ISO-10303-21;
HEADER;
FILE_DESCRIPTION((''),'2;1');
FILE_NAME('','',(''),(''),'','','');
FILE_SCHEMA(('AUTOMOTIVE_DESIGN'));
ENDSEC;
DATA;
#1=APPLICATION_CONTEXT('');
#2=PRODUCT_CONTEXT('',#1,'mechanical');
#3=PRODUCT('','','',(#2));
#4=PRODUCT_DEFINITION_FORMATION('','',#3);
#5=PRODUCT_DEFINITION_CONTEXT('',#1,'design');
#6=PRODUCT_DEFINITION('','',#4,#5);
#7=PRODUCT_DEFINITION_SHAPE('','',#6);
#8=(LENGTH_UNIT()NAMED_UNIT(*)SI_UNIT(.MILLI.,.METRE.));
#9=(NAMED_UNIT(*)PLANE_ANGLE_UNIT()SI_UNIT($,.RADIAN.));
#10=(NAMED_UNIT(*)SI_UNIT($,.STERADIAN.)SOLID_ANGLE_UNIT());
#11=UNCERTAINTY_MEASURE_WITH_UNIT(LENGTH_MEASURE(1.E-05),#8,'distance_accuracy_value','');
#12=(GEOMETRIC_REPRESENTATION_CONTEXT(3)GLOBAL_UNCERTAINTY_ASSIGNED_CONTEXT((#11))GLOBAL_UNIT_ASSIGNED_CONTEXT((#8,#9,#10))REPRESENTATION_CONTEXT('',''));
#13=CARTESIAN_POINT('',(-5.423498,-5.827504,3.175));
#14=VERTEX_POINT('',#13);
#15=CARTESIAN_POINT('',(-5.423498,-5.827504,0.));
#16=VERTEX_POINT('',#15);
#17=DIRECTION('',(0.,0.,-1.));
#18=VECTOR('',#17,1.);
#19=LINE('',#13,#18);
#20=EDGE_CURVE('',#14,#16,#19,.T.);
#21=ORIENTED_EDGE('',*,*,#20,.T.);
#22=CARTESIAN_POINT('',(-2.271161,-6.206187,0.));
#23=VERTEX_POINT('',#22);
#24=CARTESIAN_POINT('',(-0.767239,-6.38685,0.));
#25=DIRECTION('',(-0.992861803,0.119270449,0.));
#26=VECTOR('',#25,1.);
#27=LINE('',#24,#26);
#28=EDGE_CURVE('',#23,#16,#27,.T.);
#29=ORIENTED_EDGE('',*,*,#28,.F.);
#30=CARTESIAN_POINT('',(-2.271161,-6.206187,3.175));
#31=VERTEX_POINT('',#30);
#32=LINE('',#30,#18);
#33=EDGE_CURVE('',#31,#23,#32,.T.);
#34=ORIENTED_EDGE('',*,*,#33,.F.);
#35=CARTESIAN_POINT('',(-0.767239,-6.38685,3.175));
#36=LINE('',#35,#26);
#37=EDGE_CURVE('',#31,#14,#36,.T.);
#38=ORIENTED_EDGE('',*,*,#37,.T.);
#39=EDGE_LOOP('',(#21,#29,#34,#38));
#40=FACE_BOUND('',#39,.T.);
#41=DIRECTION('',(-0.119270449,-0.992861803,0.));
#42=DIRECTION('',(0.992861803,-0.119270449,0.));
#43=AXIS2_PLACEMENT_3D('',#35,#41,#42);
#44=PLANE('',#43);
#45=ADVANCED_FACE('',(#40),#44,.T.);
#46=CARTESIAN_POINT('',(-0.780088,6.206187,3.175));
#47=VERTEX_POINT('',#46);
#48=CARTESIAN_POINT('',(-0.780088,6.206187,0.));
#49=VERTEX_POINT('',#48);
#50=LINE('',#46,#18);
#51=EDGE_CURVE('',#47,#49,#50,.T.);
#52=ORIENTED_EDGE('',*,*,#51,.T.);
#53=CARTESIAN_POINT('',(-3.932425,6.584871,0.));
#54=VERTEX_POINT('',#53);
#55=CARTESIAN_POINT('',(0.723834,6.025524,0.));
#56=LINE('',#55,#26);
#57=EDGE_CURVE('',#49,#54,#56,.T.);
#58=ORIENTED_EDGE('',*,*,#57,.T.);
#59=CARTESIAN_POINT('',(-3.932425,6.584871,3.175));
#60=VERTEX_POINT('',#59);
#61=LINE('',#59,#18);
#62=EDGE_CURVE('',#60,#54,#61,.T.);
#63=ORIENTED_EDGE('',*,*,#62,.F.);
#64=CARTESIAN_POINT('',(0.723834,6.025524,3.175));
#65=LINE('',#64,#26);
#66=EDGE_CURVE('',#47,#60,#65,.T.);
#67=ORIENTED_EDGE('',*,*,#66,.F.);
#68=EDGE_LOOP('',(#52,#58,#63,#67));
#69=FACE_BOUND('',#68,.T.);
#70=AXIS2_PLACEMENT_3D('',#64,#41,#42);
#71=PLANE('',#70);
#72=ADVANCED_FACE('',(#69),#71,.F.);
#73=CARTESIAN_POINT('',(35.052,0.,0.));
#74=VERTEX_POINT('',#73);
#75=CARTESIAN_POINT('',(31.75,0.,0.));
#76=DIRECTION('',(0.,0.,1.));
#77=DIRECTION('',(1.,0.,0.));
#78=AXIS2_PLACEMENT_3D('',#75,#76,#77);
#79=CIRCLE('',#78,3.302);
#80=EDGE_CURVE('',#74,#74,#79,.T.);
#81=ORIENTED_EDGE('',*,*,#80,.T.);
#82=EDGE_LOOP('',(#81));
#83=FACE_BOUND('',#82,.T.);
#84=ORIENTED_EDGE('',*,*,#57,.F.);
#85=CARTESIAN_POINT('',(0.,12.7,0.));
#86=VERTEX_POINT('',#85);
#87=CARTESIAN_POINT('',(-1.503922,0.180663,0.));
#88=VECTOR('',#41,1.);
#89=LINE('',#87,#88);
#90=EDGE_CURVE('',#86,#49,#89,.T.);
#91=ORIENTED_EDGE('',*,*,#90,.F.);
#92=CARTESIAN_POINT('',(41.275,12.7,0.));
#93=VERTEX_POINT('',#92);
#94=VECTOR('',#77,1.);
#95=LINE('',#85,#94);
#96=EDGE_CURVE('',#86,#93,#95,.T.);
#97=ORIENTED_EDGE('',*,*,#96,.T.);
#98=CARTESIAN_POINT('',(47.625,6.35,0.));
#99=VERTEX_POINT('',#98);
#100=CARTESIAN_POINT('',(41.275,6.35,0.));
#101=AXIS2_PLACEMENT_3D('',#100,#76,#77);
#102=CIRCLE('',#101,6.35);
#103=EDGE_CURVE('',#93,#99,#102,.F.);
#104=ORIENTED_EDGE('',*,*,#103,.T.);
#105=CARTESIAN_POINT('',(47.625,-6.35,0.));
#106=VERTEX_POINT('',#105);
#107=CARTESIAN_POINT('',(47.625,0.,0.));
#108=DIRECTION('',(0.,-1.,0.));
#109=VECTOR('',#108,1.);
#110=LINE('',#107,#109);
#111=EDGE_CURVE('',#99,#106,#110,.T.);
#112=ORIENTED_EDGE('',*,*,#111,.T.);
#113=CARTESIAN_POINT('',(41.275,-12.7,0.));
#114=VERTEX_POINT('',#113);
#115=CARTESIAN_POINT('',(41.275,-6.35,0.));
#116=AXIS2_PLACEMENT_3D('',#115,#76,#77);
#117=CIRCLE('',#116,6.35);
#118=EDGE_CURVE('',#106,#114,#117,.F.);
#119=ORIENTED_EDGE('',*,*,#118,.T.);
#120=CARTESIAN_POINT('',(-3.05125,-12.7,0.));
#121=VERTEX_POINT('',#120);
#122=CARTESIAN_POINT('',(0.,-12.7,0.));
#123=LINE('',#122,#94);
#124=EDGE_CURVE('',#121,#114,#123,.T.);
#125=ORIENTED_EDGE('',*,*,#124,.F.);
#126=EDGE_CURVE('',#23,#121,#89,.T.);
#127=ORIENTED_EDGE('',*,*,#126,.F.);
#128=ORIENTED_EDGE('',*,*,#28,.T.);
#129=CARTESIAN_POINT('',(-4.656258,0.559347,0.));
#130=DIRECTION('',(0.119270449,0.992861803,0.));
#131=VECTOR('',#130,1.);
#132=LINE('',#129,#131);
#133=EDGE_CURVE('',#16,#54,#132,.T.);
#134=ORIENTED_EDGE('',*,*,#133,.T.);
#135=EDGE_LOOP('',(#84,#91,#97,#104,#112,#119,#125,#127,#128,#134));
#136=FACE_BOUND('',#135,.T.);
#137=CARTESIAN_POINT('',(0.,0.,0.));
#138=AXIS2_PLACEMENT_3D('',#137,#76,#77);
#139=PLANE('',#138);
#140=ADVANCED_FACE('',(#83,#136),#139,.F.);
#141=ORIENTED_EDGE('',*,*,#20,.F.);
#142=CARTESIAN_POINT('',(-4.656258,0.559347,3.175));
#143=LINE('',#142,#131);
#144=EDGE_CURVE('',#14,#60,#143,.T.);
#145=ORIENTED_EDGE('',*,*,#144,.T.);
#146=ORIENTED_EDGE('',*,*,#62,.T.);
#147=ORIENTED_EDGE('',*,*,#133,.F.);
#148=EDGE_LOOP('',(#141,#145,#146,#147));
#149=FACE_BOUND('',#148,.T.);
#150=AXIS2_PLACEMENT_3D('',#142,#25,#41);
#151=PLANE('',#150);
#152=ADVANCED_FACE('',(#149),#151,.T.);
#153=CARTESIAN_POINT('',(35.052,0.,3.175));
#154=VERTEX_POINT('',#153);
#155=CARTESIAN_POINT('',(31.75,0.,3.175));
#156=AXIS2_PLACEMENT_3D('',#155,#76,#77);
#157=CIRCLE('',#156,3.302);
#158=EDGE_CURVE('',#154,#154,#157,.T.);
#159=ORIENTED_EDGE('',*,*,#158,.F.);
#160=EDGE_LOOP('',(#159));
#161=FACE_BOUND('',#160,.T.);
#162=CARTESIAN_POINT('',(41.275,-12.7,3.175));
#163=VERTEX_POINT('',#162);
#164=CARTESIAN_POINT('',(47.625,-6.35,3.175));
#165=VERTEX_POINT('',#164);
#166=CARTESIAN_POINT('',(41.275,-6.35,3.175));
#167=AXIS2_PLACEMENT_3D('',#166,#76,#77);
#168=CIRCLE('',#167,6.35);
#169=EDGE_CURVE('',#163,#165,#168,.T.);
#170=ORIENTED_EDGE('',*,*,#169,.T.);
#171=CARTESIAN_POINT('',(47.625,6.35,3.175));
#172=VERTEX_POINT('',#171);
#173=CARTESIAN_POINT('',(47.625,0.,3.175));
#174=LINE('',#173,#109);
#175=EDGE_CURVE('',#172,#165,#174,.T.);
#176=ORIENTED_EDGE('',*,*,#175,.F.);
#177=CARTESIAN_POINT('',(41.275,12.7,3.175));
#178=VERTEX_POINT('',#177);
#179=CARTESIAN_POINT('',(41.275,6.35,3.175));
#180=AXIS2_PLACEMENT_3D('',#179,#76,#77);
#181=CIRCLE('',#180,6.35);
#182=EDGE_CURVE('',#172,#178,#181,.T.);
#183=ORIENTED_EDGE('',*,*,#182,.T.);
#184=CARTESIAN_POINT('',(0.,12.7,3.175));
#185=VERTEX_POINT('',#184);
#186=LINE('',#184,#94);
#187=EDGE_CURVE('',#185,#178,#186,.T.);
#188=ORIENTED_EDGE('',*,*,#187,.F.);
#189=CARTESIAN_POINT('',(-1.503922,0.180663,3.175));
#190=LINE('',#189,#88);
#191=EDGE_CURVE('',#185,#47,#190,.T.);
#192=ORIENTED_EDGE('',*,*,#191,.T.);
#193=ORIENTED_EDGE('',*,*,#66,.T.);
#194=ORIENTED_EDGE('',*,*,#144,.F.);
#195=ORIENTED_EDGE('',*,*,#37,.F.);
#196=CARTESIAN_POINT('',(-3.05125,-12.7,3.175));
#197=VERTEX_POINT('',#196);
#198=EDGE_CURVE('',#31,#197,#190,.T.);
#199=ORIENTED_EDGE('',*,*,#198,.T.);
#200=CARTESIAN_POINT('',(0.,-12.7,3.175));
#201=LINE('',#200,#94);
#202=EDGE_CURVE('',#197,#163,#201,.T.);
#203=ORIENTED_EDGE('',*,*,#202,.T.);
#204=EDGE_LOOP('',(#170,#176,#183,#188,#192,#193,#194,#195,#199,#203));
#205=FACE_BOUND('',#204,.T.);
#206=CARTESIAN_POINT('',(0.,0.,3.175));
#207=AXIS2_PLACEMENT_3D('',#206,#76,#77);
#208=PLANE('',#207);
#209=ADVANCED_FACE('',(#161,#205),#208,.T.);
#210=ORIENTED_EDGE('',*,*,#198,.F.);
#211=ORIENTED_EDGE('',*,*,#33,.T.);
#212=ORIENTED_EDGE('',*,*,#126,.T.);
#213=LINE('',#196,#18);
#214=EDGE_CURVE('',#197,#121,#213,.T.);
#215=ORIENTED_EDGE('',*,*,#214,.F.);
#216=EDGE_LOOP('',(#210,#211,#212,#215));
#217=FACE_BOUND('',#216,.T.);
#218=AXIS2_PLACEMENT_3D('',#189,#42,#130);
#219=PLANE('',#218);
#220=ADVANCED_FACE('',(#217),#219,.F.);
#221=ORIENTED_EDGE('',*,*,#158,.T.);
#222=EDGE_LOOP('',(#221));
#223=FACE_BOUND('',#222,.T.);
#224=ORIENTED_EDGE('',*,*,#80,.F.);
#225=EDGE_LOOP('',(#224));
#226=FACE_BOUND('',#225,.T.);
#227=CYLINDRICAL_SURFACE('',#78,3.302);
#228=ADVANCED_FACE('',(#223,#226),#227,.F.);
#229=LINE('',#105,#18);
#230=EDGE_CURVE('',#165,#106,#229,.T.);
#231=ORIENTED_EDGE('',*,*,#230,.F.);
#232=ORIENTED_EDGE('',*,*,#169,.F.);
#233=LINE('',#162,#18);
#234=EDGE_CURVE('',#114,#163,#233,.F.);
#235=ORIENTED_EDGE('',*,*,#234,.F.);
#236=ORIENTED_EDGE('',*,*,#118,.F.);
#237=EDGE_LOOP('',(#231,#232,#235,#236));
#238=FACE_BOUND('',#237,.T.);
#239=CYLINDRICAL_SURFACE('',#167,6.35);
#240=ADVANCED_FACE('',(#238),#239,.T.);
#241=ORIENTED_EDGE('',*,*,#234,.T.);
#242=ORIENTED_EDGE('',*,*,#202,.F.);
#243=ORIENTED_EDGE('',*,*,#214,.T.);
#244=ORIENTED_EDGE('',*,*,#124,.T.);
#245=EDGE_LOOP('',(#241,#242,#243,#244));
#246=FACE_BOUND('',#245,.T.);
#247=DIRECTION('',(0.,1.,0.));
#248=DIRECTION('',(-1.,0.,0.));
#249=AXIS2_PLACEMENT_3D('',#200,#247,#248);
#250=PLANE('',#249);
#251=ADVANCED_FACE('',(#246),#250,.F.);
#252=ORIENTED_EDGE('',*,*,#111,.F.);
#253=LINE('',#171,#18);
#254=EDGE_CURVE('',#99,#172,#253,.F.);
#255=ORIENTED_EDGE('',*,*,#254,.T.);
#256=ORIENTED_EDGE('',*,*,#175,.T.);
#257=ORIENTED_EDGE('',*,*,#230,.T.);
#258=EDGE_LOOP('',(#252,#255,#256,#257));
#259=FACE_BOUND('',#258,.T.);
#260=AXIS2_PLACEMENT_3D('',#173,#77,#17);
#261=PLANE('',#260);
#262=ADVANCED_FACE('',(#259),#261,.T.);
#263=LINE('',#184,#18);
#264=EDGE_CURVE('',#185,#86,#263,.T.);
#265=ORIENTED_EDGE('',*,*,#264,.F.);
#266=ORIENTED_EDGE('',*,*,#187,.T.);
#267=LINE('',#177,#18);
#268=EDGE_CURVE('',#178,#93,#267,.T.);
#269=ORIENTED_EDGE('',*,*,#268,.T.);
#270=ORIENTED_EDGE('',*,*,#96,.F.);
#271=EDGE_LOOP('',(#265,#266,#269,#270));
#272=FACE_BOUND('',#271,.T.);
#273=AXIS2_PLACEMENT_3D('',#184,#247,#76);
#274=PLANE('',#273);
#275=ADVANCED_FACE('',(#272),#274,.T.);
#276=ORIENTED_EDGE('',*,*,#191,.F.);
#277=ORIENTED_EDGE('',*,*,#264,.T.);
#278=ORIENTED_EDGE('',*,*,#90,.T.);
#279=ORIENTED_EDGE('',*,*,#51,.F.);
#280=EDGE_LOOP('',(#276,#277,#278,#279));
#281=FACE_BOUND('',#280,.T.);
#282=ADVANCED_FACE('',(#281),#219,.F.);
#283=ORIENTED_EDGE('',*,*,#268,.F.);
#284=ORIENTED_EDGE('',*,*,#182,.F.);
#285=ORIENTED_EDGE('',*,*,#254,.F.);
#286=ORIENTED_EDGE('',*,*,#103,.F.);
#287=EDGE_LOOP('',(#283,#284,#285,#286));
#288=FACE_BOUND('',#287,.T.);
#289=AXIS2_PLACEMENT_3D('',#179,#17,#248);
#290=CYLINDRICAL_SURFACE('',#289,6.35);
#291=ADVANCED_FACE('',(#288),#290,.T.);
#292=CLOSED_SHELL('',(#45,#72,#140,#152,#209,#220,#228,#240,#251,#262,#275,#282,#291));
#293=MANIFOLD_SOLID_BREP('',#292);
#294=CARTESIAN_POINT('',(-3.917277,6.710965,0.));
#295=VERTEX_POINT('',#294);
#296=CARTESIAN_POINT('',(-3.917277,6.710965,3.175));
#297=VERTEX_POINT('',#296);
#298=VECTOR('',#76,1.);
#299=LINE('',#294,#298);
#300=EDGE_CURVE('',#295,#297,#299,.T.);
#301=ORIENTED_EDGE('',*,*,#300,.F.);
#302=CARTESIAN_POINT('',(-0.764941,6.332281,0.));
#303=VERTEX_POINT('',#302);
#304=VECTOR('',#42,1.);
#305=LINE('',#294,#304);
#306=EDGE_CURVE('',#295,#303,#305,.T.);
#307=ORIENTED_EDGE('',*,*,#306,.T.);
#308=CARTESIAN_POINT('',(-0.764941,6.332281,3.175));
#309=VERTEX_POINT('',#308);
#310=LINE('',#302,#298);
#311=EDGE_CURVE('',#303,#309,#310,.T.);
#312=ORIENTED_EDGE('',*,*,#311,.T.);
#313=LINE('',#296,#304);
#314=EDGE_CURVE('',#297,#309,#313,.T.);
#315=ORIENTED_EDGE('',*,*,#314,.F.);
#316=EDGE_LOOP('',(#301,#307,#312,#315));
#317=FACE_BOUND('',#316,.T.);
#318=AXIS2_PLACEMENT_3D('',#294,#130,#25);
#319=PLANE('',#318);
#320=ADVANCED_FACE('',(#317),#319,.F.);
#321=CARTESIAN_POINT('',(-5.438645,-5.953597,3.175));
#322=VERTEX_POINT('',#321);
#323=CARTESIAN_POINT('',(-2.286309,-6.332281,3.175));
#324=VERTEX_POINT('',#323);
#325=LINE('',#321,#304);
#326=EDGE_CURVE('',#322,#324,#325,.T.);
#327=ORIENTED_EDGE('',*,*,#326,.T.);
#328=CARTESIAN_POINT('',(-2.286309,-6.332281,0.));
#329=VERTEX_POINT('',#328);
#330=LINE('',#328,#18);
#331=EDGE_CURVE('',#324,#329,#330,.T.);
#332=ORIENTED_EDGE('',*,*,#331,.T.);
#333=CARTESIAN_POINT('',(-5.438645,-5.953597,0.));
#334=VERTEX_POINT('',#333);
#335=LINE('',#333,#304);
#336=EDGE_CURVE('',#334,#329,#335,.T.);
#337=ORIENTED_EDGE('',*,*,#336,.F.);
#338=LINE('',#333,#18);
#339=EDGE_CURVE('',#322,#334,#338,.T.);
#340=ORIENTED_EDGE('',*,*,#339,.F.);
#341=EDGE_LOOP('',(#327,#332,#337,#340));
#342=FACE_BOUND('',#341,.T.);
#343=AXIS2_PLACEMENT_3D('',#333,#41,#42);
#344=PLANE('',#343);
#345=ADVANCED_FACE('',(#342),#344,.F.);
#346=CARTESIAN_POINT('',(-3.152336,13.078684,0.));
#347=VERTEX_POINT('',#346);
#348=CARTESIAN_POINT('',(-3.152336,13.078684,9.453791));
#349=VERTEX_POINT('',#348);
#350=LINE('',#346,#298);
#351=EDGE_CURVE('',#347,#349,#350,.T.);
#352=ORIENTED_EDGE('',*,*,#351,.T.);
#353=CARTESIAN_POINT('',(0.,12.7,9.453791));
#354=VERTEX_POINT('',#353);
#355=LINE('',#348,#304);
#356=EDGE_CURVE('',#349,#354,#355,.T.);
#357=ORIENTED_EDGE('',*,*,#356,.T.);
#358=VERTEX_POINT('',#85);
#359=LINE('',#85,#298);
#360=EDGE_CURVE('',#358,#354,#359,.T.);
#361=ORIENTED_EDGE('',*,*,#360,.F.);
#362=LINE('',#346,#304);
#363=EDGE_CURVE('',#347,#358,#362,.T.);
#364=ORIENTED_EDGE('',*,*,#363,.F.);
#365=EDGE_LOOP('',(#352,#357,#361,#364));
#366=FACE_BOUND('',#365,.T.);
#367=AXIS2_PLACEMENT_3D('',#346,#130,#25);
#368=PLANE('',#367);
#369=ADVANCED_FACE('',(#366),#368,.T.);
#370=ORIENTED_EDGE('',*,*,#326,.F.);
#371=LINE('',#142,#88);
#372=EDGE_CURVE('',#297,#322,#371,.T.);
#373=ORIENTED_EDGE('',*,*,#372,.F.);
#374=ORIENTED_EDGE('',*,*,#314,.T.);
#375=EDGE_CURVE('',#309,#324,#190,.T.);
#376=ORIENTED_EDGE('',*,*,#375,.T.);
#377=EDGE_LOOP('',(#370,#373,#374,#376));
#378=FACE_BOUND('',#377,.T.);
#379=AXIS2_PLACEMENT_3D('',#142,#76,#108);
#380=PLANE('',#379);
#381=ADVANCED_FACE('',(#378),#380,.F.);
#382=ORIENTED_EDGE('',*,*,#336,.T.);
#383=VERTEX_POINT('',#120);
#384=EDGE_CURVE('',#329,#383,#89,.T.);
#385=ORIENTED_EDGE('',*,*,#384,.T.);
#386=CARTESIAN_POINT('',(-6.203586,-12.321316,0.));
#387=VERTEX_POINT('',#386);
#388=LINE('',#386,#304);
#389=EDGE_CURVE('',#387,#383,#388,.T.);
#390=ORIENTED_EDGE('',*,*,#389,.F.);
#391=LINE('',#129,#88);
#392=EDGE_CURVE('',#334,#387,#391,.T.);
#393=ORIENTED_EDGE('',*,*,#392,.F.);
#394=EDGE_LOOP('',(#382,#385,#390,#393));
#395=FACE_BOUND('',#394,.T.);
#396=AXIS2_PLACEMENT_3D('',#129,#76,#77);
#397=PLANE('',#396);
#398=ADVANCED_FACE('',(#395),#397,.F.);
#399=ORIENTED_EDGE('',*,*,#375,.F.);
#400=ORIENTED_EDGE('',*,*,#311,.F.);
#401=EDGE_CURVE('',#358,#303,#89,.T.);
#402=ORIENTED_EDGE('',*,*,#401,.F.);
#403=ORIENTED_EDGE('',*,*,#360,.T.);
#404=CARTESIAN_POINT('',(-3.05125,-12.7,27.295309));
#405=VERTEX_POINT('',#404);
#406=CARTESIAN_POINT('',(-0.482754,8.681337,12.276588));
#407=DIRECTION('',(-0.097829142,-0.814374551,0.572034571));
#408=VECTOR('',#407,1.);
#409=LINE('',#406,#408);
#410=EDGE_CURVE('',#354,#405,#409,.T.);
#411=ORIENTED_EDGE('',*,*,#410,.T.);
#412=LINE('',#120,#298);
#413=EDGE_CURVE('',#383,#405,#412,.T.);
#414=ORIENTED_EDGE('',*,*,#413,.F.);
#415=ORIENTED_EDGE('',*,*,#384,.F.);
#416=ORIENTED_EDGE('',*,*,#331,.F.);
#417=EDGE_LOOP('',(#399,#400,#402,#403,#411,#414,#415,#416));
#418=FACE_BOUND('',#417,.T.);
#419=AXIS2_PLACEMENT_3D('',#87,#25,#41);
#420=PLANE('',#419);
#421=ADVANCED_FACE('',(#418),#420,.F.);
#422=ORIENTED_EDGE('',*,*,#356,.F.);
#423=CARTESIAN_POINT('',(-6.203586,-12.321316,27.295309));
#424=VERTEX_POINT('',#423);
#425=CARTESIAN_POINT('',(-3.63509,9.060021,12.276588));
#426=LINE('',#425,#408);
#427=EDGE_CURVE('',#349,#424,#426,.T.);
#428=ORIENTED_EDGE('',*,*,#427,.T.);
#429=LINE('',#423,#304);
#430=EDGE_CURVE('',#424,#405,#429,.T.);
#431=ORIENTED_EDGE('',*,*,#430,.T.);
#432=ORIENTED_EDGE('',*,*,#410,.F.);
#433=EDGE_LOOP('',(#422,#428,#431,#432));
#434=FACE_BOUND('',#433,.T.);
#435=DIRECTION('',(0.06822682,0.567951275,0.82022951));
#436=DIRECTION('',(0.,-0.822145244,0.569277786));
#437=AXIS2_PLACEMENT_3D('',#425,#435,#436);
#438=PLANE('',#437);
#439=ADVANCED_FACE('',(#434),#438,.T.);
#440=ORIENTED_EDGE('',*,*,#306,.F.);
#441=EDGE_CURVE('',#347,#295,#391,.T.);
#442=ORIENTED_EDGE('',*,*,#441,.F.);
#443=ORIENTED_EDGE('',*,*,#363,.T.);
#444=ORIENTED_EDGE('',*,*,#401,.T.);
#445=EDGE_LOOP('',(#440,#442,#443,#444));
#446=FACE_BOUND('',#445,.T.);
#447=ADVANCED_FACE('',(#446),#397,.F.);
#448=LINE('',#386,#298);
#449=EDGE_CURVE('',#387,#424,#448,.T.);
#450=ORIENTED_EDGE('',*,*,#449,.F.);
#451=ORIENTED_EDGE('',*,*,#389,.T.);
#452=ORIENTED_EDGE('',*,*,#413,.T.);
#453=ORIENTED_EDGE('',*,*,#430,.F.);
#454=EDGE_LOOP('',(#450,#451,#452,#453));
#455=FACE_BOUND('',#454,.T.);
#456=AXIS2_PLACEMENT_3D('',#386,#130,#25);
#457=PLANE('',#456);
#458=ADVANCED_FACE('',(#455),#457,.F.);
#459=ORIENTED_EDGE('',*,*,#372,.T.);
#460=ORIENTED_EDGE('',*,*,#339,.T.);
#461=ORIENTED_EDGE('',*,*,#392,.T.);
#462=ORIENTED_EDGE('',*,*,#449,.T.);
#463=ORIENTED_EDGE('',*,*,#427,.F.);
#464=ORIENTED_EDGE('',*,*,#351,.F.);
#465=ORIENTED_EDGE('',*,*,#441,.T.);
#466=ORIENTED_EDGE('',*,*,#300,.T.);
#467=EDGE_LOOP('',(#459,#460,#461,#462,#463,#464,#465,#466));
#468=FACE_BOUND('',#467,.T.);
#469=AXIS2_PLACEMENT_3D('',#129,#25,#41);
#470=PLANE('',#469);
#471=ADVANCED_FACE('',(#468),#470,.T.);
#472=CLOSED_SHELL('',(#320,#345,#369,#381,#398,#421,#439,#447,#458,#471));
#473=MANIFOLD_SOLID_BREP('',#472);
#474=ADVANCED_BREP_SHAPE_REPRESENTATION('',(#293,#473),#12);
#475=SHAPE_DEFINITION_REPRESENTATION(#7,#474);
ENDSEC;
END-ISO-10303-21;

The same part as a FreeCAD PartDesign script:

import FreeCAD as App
import Part
import Sketcher
from FreeCAD import Vector
Q = App.Units.Quantity


def edges_at(feature, points):
    """Names of the edges that pass closest to the given points."""
    edges = feature.Shape.Edges
    near = lambda p: min(range(len(edges)), key=lambda i: edges[i].distToShape(Part.Vertex(*p))[0])
    return sorted({f"Edge{near(p) + 1}" for p in points})


def add_polygon(sketch, points):
    """Adds a closed chain of lines whose ends are joined by coincident constraints."""
    first, n = sketch.GeometryCount, len(points)
    for a, b in zip(points, points[1:] + points[:1]):
        sketch.addGeometry(Part.LineSegment(App.Vector(*a, 0), App.Vector(*b, 0)), False)
    for i in range(n):
        sketch.addConstraint(Sketcher.Constraint("Coincident", first + i, 2, first + (i + 1) % n, 1))

doc = App.newDocument("Part")
body = doc.addObject("PartDesign::Body", "Body")

sketch1 = body.newObject("Sketcher::SketchObject", "Sketch")
sketch1.AttachmentSupport = (doc.getObject("XY_Plane"), [""])
sketch1.MapMode = "FlatFace"
add_polygon(sketch1, [(0, 12.7), (-0.8, 6.2), (-3.9, 6.6), (-5.4, -5.8), (-2.3, -6.2), (-3.1, -12.7), (47.6, -12.7), (47.6, 12.7)])
sketch1.addConstraint([
    Sketcher.Constraint("Horizontal", 5),
    Sketcher.Constraint("Vertical", 6),
    Sketcher.Constraint("Horizontal", 7),
    Sketcher.Constraint("PointOnObject", 7, 2, -2),
    Sketcher.Constraint("Perpendicular", 0, 1),
    Sketcher.Constraint("Perpendicular", 1, 2),
    Sketcher.Constraint("Perpendicular", 2, 3),
    Sketcher.Constraint("Perpendicular", 3, 4),
    Sketcher.Constraint("Equal", 1, 3),
    Sketcher.Constraint("Equal", 0, 4),
    Sketcher.Constraint("DistanceY", 6, 1, 6, 2, Q("1 in")),
    Sketcher.Constraint("DistanceY", 4, 2, -1, 1, Q("0.5 in")),
    Sketcher.Constraint("DistanceX", 7, 2, 7, 1, Q("1.875 in")),
    Sketcher.Constraint("Angle", 0, Q("-96.85 deg")),
    Sketcher.Constraint("Distance", 1, Q("0.125 in")),
    Sketcher.Constraint("Distance", 0, Q("0.2575 in")),
])
pad1 = body.newObject("PartDesign::Pad", "Pad")
pad1.Profile = sketch1
pad1.Length = Q("0.125 in")

sketch2 = body.newObject("Sketcher::SketchObject", "Sketch001")
sketch2.AttachmentSupport = (doc.getObject("XY_Plane"), [""])
sketch2.MapMode = "FlatFace"
sketch2.AttachmentOffset = App.Placement(Vector(0, 0, 0.125 * 25.4), App.Rotation())
sketch2.addGeometry(Part.Circle(Vector(31.8, 0, 0), Vector(0, 0, 1), 3.3), False)
sketch2.addConstraint([
    Sketcher.Constraint("PointOnObject", 0, 3, -1),
    Sketcher.Constraint("Diameter", 0, Q("0.26 in")),
    Sketcher.Constraint("DistanceX", -1, 1, 0, 3, Q("1.25 in")),
])
pocket1 = body.newObject("PartDesign::Pocket", "Pocket")
pocket1.Profile = sketch2
pocket1.Type = "ThroughAll"
pocket1.Midplane = True
doc.recompute()

fillet = body.newObject("PartDesign::Fillet", "Fillet")
fillet.Base = (pocket1, edges_at(pocket1, [(47.625, 12.7, 1.587), (47.625, -12.7, 1.587)]))
fillet.Radius = Q("0.25 in")
body2 = doc.addObject("PartDesign::Body", "Body001")

sketch3 = body2.newObject("Sketcher::SketchObject", "Sketch002")
sketch3.Placement = App.Placement(Vector(-1.503922, 0.180663, 0), App.Rotation(Vector(0, 0, 1), Vector(0.119270449, 0.992861803, 0), Vector(-0.992861803, 0.119270449, 0), "ZXY"))
add_polygon(sketch3, [(0, -6.6), (0, -13), (27.3, -13), (9.5, 12.6), (0, 12.6), (0, 6.2), (3.2, 6.2), (3.2, -6.6)])
sketch3.addConstraint([
    Sketcher.Constraint("Vertical", 0),
    Sketcher.Constraint("Horizontal", 1),
    Sketcher.Constraint("Horizontal", 3),
    Sketcher.Constraint("Vertical", 4),
    Sketcher.Constraint("Horizontal", 5),
    Sketcher.Constraint("Vertical", 6),
    Sketcher.Constraint("Horizontal", 7),
    Sketcher.Constraint("PointOnObject", 0, 2, -2),
    Sketcher.Constraint("PointOnObject", 3, 2, -2),
    Sketcher.Constraint("Equal", 0, 4),
    Sketcher.Constraint("DistanceX", 5, 1, 5, 2, Q("0.125 in")),
    Sketcher.Constraint("DistanceY", 0, 2, 0, 1, Q("0.2525 in")),
    Sketcher.Constraint("DistanceX", 1, 1, 1, 2, Q("27.295309 mm")),
    Sketcher.Constraint("DistanceX", 3, 2, 3, 1, Q("9.453791 mm")),
    Sketcher.Constraint("Distance", 2, Q("31.18958 mm")),
    Sketcher.Constraint("DistanceY", 0, 2, -1, 1, Q("12.973269 mm")),
])
pad2 = body2.newObject("PartDesign::Pad", "Pad001")
pad2.Profile = sketch3
pad2.Length = Q("0.125 in")

doc.recompute()
